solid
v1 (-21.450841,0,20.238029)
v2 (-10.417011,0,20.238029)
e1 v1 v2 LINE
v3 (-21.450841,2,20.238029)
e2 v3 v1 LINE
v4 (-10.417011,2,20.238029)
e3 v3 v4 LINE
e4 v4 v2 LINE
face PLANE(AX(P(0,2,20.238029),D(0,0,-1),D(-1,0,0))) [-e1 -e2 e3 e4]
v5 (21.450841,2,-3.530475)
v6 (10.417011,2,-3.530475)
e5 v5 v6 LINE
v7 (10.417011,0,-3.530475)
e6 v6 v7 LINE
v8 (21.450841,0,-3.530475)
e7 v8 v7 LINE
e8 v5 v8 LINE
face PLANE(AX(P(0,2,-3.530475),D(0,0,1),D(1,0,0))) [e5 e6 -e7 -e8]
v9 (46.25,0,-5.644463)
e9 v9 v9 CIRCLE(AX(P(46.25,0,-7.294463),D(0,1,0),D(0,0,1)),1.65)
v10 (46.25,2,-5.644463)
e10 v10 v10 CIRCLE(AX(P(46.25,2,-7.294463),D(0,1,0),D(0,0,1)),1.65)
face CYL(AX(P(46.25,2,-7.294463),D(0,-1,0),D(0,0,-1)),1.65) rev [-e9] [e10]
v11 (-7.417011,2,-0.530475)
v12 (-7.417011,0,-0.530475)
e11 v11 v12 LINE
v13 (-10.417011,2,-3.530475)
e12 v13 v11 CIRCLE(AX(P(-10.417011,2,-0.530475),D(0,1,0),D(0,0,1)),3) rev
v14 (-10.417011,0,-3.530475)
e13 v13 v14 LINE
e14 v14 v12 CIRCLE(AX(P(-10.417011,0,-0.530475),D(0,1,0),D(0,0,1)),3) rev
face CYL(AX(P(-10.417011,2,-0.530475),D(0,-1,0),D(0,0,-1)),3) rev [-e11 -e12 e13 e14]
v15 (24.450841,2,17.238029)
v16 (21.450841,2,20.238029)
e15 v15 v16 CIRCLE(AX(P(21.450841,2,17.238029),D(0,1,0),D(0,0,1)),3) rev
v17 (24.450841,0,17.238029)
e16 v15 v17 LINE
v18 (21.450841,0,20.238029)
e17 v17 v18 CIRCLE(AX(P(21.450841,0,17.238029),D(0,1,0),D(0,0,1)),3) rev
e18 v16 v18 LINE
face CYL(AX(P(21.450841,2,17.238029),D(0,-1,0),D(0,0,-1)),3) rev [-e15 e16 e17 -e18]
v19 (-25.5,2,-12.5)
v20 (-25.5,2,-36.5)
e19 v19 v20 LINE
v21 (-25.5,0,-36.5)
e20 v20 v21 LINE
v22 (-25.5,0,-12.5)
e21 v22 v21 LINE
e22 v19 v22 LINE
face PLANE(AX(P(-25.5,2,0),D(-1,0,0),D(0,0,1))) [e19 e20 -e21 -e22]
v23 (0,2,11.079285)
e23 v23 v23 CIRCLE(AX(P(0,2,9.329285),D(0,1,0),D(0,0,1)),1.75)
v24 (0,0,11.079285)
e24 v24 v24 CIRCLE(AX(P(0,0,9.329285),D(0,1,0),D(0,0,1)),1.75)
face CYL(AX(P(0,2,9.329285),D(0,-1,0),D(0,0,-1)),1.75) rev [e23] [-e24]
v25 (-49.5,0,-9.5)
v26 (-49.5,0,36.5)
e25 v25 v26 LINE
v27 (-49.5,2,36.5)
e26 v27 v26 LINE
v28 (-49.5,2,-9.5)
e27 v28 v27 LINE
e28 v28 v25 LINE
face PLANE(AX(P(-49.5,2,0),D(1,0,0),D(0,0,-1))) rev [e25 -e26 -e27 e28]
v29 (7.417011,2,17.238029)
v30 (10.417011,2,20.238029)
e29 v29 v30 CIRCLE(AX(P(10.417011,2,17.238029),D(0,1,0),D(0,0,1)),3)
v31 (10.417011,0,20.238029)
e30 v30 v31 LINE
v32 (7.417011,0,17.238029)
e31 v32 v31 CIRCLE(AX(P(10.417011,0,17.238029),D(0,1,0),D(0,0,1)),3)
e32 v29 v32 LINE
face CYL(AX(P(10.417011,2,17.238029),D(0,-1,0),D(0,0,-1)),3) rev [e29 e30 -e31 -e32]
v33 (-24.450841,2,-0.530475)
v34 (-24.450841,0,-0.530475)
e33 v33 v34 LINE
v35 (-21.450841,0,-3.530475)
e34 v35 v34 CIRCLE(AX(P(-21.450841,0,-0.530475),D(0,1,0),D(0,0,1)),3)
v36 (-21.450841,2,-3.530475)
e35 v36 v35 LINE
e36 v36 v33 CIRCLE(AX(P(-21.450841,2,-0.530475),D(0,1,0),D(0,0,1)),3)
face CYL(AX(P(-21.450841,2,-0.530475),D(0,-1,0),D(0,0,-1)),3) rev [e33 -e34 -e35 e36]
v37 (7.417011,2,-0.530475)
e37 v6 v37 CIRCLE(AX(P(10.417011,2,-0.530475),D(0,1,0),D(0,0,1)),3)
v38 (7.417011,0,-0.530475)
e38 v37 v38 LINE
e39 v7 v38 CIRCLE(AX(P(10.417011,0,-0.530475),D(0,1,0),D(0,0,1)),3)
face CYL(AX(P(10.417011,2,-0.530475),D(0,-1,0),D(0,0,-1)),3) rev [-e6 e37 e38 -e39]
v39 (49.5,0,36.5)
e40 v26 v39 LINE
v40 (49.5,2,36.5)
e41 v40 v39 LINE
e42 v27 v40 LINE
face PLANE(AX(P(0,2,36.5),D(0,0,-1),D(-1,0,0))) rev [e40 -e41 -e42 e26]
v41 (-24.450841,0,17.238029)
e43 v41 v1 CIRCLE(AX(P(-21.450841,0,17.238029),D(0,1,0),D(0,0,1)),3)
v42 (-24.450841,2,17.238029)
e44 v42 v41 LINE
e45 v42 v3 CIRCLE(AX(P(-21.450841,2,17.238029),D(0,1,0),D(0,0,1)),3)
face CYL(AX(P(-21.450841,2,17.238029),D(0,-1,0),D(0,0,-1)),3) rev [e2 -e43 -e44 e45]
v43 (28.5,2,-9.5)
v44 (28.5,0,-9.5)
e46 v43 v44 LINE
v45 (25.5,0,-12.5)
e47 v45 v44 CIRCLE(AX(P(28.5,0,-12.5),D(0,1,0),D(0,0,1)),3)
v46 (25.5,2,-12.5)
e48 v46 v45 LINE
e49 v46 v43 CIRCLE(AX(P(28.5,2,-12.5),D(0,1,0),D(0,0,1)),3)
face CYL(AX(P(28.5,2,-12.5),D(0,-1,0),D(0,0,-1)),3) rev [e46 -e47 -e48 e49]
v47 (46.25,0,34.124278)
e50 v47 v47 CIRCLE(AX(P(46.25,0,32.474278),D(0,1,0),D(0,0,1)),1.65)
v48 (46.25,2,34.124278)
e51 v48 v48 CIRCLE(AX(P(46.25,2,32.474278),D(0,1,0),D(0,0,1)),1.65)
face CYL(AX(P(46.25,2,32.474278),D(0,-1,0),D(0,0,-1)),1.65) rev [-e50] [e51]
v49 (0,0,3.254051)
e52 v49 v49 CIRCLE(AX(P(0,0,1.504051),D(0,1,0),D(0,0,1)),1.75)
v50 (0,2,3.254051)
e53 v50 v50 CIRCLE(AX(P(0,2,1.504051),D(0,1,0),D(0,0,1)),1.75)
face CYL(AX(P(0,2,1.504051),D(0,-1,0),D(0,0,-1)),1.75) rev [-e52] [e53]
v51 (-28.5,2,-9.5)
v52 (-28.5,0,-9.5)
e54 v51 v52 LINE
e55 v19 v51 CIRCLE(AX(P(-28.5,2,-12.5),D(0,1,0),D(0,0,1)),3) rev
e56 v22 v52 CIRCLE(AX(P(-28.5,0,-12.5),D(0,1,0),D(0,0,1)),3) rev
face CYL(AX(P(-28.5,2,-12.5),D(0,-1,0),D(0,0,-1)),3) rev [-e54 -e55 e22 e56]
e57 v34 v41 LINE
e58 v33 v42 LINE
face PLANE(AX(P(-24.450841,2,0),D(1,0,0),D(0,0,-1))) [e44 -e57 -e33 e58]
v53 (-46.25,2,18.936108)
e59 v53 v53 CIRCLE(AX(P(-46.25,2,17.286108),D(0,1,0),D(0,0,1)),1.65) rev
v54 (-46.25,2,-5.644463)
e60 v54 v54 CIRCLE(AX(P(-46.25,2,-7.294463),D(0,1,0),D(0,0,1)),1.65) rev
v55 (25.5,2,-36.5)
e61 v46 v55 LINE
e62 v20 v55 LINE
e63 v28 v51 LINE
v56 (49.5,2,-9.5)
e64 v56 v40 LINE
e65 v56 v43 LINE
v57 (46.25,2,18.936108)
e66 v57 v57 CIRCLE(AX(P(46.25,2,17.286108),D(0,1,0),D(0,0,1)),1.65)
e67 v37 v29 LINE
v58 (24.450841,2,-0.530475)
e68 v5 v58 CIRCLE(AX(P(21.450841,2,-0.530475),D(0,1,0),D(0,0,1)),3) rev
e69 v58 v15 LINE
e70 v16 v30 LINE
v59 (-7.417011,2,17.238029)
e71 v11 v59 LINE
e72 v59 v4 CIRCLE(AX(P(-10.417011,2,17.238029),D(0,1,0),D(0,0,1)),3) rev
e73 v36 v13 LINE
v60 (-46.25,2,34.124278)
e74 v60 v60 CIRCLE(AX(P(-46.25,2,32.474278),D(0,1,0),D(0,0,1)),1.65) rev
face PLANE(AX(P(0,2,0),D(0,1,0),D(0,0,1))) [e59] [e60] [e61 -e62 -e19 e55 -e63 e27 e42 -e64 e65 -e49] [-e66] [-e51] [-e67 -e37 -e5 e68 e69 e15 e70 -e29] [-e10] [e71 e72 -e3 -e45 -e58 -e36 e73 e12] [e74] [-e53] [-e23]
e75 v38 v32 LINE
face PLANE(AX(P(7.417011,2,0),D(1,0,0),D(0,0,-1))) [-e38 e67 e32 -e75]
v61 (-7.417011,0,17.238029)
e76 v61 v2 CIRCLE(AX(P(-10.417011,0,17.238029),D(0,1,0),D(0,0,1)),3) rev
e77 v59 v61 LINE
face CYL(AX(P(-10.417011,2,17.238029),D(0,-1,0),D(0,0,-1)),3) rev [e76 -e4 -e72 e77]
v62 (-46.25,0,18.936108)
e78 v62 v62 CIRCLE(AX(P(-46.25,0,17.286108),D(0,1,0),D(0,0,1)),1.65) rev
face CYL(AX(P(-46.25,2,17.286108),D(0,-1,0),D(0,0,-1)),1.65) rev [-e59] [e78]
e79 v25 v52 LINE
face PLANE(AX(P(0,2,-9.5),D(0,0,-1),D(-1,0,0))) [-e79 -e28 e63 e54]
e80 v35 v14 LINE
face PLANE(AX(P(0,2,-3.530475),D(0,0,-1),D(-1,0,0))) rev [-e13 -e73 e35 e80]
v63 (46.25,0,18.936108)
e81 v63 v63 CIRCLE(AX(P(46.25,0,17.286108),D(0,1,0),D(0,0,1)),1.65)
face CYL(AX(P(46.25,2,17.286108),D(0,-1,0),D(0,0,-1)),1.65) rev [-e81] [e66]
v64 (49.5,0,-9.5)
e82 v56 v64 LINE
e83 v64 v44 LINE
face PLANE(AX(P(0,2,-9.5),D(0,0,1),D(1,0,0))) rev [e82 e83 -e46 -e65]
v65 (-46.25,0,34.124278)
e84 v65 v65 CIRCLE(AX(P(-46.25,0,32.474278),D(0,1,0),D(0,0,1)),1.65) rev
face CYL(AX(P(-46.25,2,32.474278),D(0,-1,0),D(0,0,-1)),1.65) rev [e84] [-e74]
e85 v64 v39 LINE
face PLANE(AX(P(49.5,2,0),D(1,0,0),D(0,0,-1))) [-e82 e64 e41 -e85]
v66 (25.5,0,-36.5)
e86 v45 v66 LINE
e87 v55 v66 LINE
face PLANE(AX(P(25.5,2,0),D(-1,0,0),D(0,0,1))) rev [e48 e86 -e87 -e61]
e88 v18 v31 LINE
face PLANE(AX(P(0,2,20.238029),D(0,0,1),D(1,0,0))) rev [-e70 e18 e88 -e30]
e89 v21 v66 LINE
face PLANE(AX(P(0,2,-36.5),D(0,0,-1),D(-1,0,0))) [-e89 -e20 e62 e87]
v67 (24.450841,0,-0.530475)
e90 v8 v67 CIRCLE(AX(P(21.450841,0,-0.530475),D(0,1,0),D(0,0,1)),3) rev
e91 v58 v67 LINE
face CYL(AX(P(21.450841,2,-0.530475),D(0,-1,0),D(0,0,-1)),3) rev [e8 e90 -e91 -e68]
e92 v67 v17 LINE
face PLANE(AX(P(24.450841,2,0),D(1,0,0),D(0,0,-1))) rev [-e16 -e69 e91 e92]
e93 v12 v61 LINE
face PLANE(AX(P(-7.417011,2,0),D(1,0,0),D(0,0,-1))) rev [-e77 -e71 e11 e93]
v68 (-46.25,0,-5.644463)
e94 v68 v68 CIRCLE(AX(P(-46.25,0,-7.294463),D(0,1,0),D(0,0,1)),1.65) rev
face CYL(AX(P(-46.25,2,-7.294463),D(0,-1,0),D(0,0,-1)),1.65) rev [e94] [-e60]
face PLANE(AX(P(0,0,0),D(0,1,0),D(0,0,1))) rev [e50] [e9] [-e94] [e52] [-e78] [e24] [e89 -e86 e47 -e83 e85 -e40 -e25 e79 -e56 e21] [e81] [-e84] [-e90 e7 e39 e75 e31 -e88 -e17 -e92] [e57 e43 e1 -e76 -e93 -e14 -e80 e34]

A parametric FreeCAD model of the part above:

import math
import FreeCAD as App
import Part
import Sketcher

V = App.Vector
Q = App.Units.Quantity

doc = App.newDocument("Part")
body = doc.addObject("PartDesign::Body", "Body")

sketch1 = body.newObject("Sketcher::SketchObject", "Sketch")
sketch1.AttachmentSupport = (doc.getObject("XZ_Plane"), [""])
sketch1.MapMode = "FlatFace"
sketch1.addGeometry([
    Part.LineSegment(V(-28.5, -9.5, 0), V(-49.5, -9.5, 0)),
    Part.LineSegment(V(-49.5, -9.5, 0), V(-49.5, 36.5, 0)),
    Part.LineSegment(V(-49.5, 36.5, 0), V(49.5, 36.5, 0)),
    Part.LineSegment(V(49.5, 36.5, 0), V(49.5, -9.5, 0)),
    Part.LineSegment(V(49.5, -9.5, 0), V(28.5, -9.5, 0)),
    Part.ArcOfCircle(Part.Circle(V(28.5, -12.5, 0), V(0, 0, 1), 3), math.radians(90), math.radians(180)),
    Part.LineSegment(V(25.5, -12.5, 0), V(25.5, -36.5, 0)),
    Part.LineSegment(V(25.5, -36.5, 0), V(-25.5, -36.5, 0)),
    Part.LineSegment(V(-25.5, -36.5, 0), V(-25.5, -12.5, 0)),
    Part.ArcOfCircle(Part.Circle(V(-28.5, -12.5, 0), V(0, 0, 1), 3), math.radians(0), math.radians(90)),
    Part.Circle(V(-46.2, 32.5, 0), V(0, 0, 1), 1.6),
    Part.Circle(V(-46.2, 17.3, 0), V(0, 0, 1), 1.6),
    Part.Circle(V(46.2, 32.5, 0), V(0, 0, 1), 1.6),
    Part.Circle(V(46.2, 17.3, 0), V(0, 0, 1), 1.6),
    Part.LineSegment(V(-21.5, -3.5, 0), V(-10.4, -3.5, 0)),
    Part.ArcOfCircle(Part.Circle(V(-10.4, -0.5, 0), V(0, 0, 1), 3), math.radians(-90), math.radians(0)),
    Part.LineSegment(V(-7.4, -0.5, 0), V(-7.4, 17.2, 0)),
    Part.ArcOfCircle(Part.Circle(V(-10.4, 17.2, 0), V(0, 0, 1), 3), math.radians(0), math.radians(90)),
    Part.LineSegment(V(-10.4, 20.2, 0), V(-21.5, 20.2, 0)),
    Part.ArcOfCircle(Part.Circle(V(-21.5, 17.2, 0), V(0, 0, 1), 3), math.radians(90), math.radians(180)),
    Part.LineSegment(V(-24.5, 17.2, 0), V(-24.5, -0.5, 0)),
    Part.ArcOfCircle(Part.Circle(V(-21.5, -0.5, 0), V(0, 0, 1), 3), math.radians(-180), math.radians(-90)),
    Part.Circle(V(-46.2, -7.3, 0), V(0, 0, 1), 1.6),
    Part.Circle(V(0, 9.3, 0), V(0, 0, 1), 1.8),
    Part.ArcOfCircle(Part.Circle(V(10.4, -0.5, 0), V(0, 0, 1), 3), math.radians(-180), math.radians(-90)),
    Part.LineSegment(V(10.4, -3.5, 0), V(21.5, -3.5, 0)),
    Part.ArcOfCircle(Part.Circle(V(21.5, -0.5, 0), V(0, 0, 1), 3), math.radians(-90), math.radians(0)),
    Part.LineSegment(V(24.5, -0.5, 0), V(24.5, 17.2, 0)),
    Part.ArcOfCircle(Part.Circle(V(21.5, 17.2, 0), V(0, 0, 1), 3), math.radians(0), math.radians(90)),
    Part.LineSegment(V(21.5, 20.2, 0), V(10.4, 20.2, 0)),
    Part.ArcOfCircle(Part.Circle(V(10.4, 17.2, 0), V(0, 0, 1), 3), math.radians(90), math.radians(180)),
    Part.LineSegment(V(7.4, 17.2, 0), V(7.4, -0.5, 0)),
    Part.Circle(V(0, 1.5, 0), V(0, 0, 1), 1.8),
    Part.Circle(V(46.2, -7.3, 0), V(0, 0, 1), 1.6),
], False)
sketch1.addConstraint([
    Sketcher.Constraint("Coincident", 0, 2, 1, 1),
    Sketcher.Constraint("Coincident", 1, 2, 2, 1),
    Sketcher.Constraint("Coincident", 2, 2, 3, 1),
    Sketcher.Constraint("Coincident", 3, 2, 4, 1),
    Sketcher.Constraint("Tangent", 4, 2, 5, 1),
    Sketcher.Constraint("Tangent", 5, 2, 6, 1),
    Sketcher.Constraint("Coincident", 6, 2, 7, 1),
    Sketcher.Constraint("Coincident", 7, 2, 8, 1),
    Sketcher.Constraint("Tangent", 8, 2, 9, 1),
    Sketcher.Constraint("Tangent", 9, 2, 0, 1),
    Sketcher.Constraint("Tangent", 14, 2, 15, 1),
    Sketcher.Constraint("Tangent", 15, 2, 16, 1),
    Sketcher.Constraint("Tangent", 16, 2, 17, 1),
    Sketcher.Constraint("Tangent", 17, 2, 18, 1),
    Sketcher.Constraint("Tangent", 18, 2, 19, 1),
    Sketcher.Constraint("Tangent", 19, 2, 20, 1),
    Sketcher.Constraint("Tangent", 20, 2, 21, 1),
    Sketcher.Constraint("Tangent", 21, 2, 14, 1),
    Sketcher.Constraint("Tangent", 24, 2, 25, 1),
    Sketcher.Constraint("Tangent", 25, 2, 26, 1),
    Sketcher.Constraint("Tangent", 26, 2, 27, 1),
    Sketcher.Constraint("Tangent", 27, 2, 28, 1),
    Sketcher.Constraint("Tangent", 28, 2, 29, 1),
    Sketcher.Constraint("Tangent", 29, 2, 30, 1),
    Sketcher.Constraint("Tangent", 30, 2, 31, 1),
    Sketcher.Constraint("Tangent", 31, 2, 24, 1),
    Sketcher.Constraint("Horizontal", 0),
    Sketcher.Constraint("Vertical", 1),
    Sketcher.Constraint("Horizontal", 2),
    Sketcher.Constraint("Vertical", 3),
    Sketcher.Constraint("Horizontal", 4),
    Sketcher.Constraint("Vertical", 6),
    Sketcher.Constraint("Horizontal", 7),
    Sketcher.Constraint("Vertical", 8),
    Sketcher.Constraint("Horizontal", 14),
    Sketcher.Constraint("Vertical", 16),
    Sketcher.Constraint("Horizontal", 18),
    Sketcher.Constraint("Vertical", 20),
    Sketcher.Constraint("Horizontal", 25),
    Sketcher.Constraint("Vertical", 27),
    Sketcher.Constraint("Horizontal", 29),
    Sketcher.Constraint("Vertical", 31),
    Sketcher.Constraint("Equal", 5, 9),
    Sketcher.Constraint("Equal", 10, 11),
    Sketcher.Constraint("Equal", 11, 12),
    Sketcher.Constraint("Equal", 12, 13),
    Sketcher.Constraint("Equal", 9, 15),
    Sketcher.Constraint("Equal", 15, 17),
    Sketcher.Constraint("Equal", 17, 19),
    Sketcher.Constraint("Equal", 19, 21),
    Sketcher.Constraint("Equal", 13, 22),
    Sketcher.Constraint("Equal", 21, 24),
    Sketcher.Constraint("Equal", 24, 26),
    Sketcher.Constraint("Equal", 26, 28),
    Sketcher.Constraint("Equal", 28, 30),
    Sketcher.Constraint("Equal", 23, 32),
    Sketcher.Constraint("Equal", 22, 33),
    Sketcher.Constraint("Symmetric", 5, 3, 9, 3, -2),
    Sketcher.Constraint("Symmetric", 10, 3, 12, 3, -2),
    Sketcher.Constraint("Symmetric", 11, 3, 13, 3, -2),
    Sketcher.Constraint("Symmetric", 15, 3, 24, 3, -2),
    Sketcher.Constraint("Symmetric", 19, 3, 28, 3, -2),
    Sketcher.Constraint("Symmetric", 22, 3, 33, 3, -2),
    Sketcher.Constraint("PointOnObject", 23, 3, -2),
    Sketcher.Constraint("PointOnObject", 32, 3, -2),
    Sketcher.Constraint("Vertical", 10, 3, 11, 3),
    Sketcher.Constraint("Vertical", 11, 3, 22, 3),
    Sketcher.Constraint("Equal", 0, 4),
    Sketcher.Constraint("Radius", 5, Q("3 mm")),
    Sketcher.Constraint("Diameter", 10, Q("3.3 mm")),
    Sketcher.Constraint("Diameter", 23, Q("3.5 mm")),
    Sketcher.Constraint("DistanceX", 0, 2, 0, 1, Q("21 mm")),
    Sketcher.Constraint("DistanceX", 2, 1, 2, 2, Q("99 mm")),
    Sketcher.Constraint("DistanceY", 1, 1, 1, 2, Q("46 mm")),
    Sketcher.Constraint("DistanceY", 6, 2, 6, 1, Q("24 mm")),
    Sketcher.Constraint("DistanceY", 5, 3, -1, 1, Q("12.5 mm")),
    Sketcher.Constraint("DistanceX", 10, 3, 12, 3, Q("92.5 mm")),
    Sketcher.Constraint("DistanceX", 14, 1, 14, 2, Q("11.03383 mm")),
    Sketcher.Constraint("DistanceY", 16, 1, 16, 2, Q("17.768504 mm")),
    Sketcher.Constraint("DistanceY", -1, 1, 11, 3, Q("17.286108 mm")),
    Sketcher.Constraint("DistanceX", 15, 3, -1, 1, Q("10.417011 mm")),
    Sketcher.Constraint("DistanceY", -1, 1, 17, 3, Q("17.238029 mm")),
    Sketcher.Constraint("DistanceY", -1, 1, 32, 3, Q("1.504051 mm")),
    Sketcher.Constraint("DistanceY", 11, 3, 10, 3, Q("15.188169 mm")),
    Sketcher.Constraint("DistanceY", 22, 3, 11, 3, Q("24.580572 mm")),
    Sketcher.Constraint("DistanceY", 15, 3, 23, 3, Q("9.85976 mm")),
])
pad1 = body.newObject("PartDesign::Pad", "Pad")
pad1.Profile = sketch1
pad1.Length = 2
pad1.Reversed = True

doc.recompute()
